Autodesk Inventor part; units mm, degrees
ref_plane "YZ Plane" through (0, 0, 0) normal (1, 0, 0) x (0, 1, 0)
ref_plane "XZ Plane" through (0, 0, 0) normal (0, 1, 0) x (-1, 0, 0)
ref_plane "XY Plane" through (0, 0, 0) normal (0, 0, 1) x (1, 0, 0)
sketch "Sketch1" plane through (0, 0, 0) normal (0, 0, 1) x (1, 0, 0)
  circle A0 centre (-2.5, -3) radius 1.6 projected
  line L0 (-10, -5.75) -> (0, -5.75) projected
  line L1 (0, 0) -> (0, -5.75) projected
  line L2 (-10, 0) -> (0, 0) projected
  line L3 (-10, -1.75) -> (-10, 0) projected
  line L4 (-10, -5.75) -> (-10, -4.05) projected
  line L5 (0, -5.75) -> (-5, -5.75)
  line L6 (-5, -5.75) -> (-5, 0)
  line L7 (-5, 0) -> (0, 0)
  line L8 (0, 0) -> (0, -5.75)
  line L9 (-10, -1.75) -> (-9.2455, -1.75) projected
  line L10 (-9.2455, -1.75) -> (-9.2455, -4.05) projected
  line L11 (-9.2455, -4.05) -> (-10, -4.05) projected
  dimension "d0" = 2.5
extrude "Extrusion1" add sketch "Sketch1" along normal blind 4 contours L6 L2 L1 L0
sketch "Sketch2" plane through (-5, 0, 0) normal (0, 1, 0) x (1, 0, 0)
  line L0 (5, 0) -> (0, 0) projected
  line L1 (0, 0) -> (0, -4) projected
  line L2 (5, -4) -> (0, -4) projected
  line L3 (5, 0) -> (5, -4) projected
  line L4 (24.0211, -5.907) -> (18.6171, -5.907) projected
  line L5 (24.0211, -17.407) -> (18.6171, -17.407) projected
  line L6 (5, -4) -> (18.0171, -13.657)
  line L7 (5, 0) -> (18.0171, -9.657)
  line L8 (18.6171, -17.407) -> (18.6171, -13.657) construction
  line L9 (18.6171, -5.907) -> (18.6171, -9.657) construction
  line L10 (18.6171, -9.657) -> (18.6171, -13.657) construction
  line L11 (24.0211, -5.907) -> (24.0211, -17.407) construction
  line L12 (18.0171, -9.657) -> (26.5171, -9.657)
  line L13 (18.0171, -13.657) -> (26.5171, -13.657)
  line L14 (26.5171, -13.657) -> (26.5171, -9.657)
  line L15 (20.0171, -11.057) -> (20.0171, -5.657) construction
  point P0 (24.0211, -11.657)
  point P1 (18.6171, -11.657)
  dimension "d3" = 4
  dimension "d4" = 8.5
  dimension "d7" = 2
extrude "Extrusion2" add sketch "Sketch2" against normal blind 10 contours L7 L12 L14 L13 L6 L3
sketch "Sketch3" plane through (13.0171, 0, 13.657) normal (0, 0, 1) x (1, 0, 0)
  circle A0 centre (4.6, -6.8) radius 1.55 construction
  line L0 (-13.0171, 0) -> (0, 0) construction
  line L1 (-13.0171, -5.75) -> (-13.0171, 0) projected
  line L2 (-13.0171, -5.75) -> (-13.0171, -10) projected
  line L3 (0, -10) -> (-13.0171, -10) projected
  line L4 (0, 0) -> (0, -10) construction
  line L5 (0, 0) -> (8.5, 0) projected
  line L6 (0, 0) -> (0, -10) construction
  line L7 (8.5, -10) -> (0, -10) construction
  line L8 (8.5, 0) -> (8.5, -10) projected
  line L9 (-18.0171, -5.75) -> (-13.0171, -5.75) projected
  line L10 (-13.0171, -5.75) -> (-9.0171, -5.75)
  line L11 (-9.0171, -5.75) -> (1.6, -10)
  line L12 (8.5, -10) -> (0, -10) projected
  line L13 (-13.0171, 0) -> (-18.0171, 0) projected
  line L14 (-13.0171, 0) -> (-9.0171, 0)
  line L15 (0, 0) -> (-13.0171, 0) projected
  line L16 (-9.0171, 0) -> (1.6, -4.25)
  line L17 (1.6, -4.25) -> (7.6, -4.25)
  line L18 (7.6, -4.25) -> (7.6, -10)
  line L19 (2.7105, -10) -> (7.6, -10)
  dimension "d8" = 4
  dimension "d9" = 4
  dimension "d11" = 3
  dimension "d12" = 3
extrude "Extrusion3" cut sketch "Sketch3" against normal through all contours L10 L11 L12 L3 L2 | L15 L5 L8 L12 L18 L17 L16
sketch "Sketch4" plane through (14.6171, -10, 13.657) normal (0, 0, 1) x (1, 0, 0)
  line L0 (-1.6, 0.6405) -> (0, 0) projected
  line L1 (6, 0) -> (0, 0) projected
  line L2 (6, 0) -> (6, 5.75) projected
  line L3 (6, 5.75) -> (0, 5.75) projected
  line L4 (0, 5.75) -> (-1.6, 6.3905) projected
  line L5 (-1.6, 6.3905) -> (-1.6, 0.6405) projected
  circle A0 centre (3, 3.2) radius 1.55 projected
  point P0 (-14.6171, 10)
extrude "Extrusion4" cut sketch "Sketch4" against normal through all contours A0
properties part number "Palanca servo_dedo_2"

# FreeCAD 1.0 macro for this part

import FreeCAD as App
import Part
import Sketcher
Q = App.Units.Quantity


def add_polygon(sketch, points):
    """Adds a closed chain of lines whose ends are joined by coincident constraints."""
    first, n = sketch.GeometryCount, len(points)
    for a, b in zip(points, points[1:] + points[:1]):
        sketch.addGeometry(Part.LineSegment(App.Vector(*a, 0), App.Vector(*b, 0)), False)
    for i in range(n):
        sketch.addConstraint(Sketcher.Constraint("Coincident", first + i, 2, first + (i + 1) % n, 1))

doc = App.newDocument("Part")
body = doc.addObject("PartDesign::Body", "Body")

sketch1 = body.newObject("Sketcher::SketchObject", "Sketch")
sketch1.AttachmentSupport = (doc.getObject("XY_Plane"), [""])
sketch1.MapMode = "FlatFace"
add_polygon(sketch1, [(-5, 0), (-5, -5.8), (0, -5.8), (0, 0)])
sketch1.addGeometry(Part.Circle(App.Vector(-2.5, -3, 0), App.Vector(0, 0, 1), 1.6), False)
sketch1.addConstraint([
    Sketcher.Constraint("Vertical", 0),
    Sketcher.Constraint("Horizontal", 1),
    Sketcher.Constraint("Vertical", 2),
    Sketcher.Constraint("Horizontal", 3),
    Sketcher.Constraint("Coincident", 2, 2, -1, 1),
    Sketcher.Constraint("Diameter", 4, 3.2),
    Sketcher.Constraint("DistanceX", 4, 3, -1, 1, 2.5),
    Sketcher.Constraint("DistanceX", 0, 2, 4, 3, 2.5),
    Sketcher.Constraint("DistanceY", 4, 3, -1, 1, 3.0),
    Sketcher.Constraint("DistanceY", 0, 2, 0, 1, 5.75),
])
pad1 = body.newObject("PartDesign::Pad", "Pad")
pad1.Profile = sketch1
pad1.Length = 4

sketch2 = body.newObject("Sketcher::SketchObject", "Sketch001")
sketch2.AttachmentSupport = (doc.getObject("XZ_Plane"), [""])
sketch2.MapMode = "FlatFace"
add_polygon(sketch2, [(13, 9.7), (0, 0), (0, 4), (13, 13.7), (21.5, 13.7), (21.5, 9.7)])
sketch2.addConstraint([
    Sketcher.Constraint("Vertical", 1),
    Sketcher.Constraint("Horizontal", 3),
    Sketcher.Constraint("Vertical", 4),
    Sketcher.Constraint("Horizontal", 5),
    Sketcher.Constraint("Coincident", 0, 2, -1, 1),
    Sketcher.Constraint("Parallel", 0, 2),
    Sketcher.Constraint("Vertical", 2, 2, 5, 2),
    Sketcher.Constraint("DistanceY", 1, 1, 1, 2, 4.0),
    Sketcher.Constraint("DistanceX", 3, 1, 3, 2, 8.5),
    Sketcher.Constraint("Angle", 0, Q("-143.4294 deg")),
    Sketcher.Constraint("Distance", 0, 16.208),
])
pad2 = body.newObject("PartDesign::Pad", "Pad001")
pad2.Profile = sketch2
pad2.Length = 10

sketch3 = body.newObject("Sketcher::SketchObject", "Sketch002")
sketch3.AttachmentSupport = (doc.getObject("XY_Plane"), [""])
sketch3.MapMode = "FlatFace"
sketch3.AttachmentOffset = App.Placement(App.Vector(0, 0, 13.657), App.Rotation())
add_polygon(sketch3, [(4, -5.8), (0, -5.8), (0, -10), (14.6, -10)])
add_polygon(sketch3, [(21.5, 0), (4, 0), (14.6, -4.2), (20.6, -4.2), (20.6, -10), (21.5, -10)])
sketch3.addConstraint([
    Sketcher.Constraint("Horizontal", 0),
    Sketcher.Constraint("Vertical", 1),
    Sketcher.Constraint("Horizontal", 2),
    Sketcher.Constraint("Horizontal", 4),
    Sketcher.Constraint("Horizontal", 6),
    Sketcher.Constraint("Vertical", 7),
    Sketcher.Constraint("Horizontal", 8),
    Sketcher.Constraint("Vertical", 9),
    Sketcher.Constraint("PointOnObject", 0, 2, -2),
    Sketcher.Constraint("PointOnObject", 4, 2, -1),
    Sketcher.Constraint("Parallel", 3, 5),
    Sketcher.Constraint("Horizontal", 2, 2, 7, 2),
    Sketcher.Constraint("Vertical", 3, 2, 4, 2),
    Sketcher.Constraint("Vertical", 2, 2, 5, 2),
    Sketcher.Constraint("DistanceX", 0, 2, 0, 1, 4.0),
    Sketcher.Constraint("DistanceX", 6, 1, 6, 2, 6.0),
    Sketcher.Constraint("DistanceY", 9, 1, 9, 2, 10.0),
    Sketcher.Constraint("DistanceX", 8, 1, 8, 2, 0.9),
    Sketcher.Constraint("DistanceY", 1, 2, 1, 1, 4.25),
    Sketcher.Constraint("DistanceX", 2, 1, 2, 2, 14.617),
])
pocket1 = body.newObject("PartDesign::Pocket", "Pocket")
pocket1.Profile = sketch3
pocket1.Type = "ThroughAll"

sketch4 = body.newObject("Sketcher::SketchObject", "Sketch003")
sketch4.AttachmentSupport = (doc.getObject("XY_Plane"), [""])
sketch4.MapMode = "FlatFace"
sketch4.AttachmentOffset = App.Placement(App.Vector(0, 0, 13.657), App.Rotation())
sketch4.addGeometry(Part.Circle(App.Vector(17.6, -6.8, 0), App.Vector(0, 0, 1), 1.6), False)
sketch4.addConstraint([
    Sketcher.Constraint("Diameter", 0, 3.1),
    Sketcher.Constraint("DistanceY", 0, 3, -1, 1, 6.8),
    Sketcher.Constraint("DistanceX", -1, 1, 0, 3, 17.617),
])
pocket2 = body.newObject("PartDesign::Pocket", "Pocket001")
pocket2.Profile = sketch4
pocket2.Type = "ThroughAll"

doc.recompute()
